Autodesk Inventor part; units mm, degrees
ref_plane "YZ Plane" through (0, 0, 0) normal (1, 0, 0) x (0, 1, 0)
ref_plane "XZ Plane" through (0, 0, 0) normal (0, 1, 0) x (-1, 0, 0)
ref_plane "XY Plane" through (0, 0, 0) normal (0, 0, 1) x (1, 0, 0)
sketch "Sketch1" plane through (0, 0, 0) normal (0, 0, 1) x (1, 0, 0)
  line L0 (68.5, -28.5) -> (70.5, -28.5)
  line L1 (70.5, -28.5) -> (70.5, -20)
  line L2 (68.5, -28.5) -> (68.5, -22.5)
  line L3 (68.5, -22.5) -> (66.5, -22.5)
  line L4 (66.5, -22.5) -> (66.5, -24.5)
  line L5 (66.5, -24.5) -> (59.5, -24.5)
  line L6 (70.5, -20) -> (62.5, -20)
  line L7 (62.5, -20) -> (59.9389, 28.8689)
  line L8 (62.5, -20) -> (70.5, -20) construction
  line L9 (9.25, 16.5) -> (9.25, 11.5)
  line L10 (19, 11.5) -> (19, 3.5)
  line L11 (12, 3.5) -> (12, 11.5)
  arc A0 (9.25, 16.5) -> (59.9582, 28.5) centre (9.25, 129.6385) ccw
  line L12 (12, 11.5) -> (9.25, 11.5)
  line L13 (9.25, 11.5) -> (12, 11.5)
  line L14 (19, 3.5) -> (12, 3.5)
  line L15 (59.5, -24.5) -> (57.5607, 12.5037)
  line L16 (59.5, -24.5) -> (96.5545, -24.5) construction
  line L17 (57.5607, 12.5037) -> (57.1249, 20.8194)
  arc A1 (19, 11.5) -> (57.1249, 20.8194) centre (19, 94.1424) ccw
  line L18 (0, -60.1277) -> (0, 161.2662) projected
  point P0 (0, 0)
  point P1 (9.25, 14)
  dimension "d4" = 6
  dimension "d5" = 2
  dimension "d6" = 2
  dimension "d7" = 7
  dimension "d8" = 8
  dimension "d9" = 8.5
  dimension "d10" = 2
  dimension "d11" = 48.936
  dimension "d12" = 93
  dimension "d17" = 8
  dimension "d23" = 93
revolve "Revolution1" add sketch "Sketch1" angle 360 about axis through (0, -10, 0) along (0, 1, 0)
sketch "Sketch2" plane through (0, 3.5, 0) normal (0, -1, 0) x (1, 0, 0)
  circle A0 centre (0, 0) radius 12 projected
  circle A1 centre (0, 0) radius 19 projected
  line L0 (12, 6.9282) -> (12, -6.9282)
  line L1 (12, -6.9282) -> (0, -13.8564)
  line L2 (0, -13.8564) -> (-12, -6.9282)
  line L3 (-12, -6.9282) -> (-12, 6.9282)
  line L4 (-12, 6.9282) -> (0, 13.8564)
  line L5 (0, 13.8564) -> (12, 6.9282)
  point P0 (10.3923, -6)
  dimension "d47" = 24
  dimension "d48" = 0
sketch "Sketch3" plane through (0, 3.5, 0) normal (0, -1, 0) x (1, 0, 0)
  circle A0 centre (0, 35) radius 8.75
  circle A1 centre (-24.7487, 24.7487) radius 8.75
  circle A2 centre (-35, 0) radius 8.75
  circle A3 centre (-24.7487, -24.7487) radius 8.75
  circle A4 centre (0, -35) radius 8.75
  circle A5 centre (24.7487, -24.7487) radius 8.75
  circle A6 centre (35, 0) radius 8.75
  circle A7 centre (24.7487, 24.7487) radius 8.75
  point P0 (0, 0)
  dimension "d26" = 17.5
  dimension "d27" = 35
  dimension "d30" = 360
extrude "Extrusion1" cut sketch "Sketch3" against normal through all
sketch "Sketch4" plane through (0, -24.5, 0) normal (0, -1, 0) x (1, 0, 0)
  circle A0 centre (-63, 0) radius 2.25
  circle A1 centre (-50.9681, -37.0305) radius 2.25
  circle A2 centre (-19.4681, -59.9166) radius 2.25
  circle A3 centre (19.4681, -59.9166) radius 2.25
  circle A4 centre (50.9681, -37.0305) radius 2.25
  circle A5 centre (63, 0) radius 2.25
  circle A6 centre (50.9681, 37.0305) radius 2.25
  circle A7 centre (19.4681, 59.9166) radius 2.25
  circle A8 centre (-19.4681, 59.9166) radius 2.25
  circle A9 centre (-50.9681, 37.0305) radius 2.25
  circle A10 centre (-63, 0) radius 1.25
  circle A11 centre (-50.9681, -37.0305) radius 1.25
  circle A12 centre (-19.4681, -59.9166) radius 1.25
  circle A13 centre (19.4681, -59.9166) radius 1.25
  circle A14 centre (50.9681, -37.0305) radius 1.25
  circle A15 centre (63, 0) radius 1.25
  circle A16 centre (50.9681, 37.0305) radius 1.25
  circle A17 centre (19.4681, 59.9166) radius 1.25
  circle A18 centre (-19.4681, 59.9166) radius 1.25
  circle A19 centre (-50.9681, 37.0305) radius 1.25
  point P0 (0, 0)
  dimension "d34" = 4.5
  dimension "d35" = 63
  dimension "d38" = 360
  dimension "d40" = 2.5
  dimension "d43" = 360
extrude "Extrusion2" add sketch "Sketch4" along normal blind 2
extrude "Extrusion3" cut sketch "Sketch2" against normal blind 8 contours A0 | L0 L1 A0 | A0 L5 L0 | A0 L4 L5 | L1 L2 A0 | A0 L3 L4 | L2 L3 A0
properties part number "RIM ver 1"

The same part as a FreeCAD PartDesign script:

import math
import FreeCAD as App
import Part
import Sketcher
from FreeCAD import Vector
Q = App.Units.Quantity

doc = App.newDocument("Part")
body = doc.addObject("PartDesign::Body", "Body")

sketch1 = doc.addObject("Sketcher::SketchObject", "Sketch")
body.addObject(sketch1)
sketch1.AttachmentSupport = (doc.XY_Plane, [""])
sketch1.MapMode = "FlatFace"
sketch1.addGeometry(Part.LineSegment(Vector(68.5, -22.5, 0), Vector(68.5, -28.5, 0)), False)
sketch1.addGeometry(Part.LineSegment(Vector(68.5, -28.5, 0), Vector(70.5, -28.5, 0)), False)
sketch1.addGeometry(Part.LineSegment(Vector(70.5, -28.5, 0), Vector(70.5, -20, 0)), False)
sketch1.addGeometry(Part.LineSegment(Vector(70.5, -20, 0), Vector(62.5, -20, 0)), False)
sketch1.addGeometry(Part.LineSegment(Vector(62.5, -20, 0), Vector(60, 28.5, 0)), False)
sketch1.addGeometry(Part.ArcOfCircle(Part.Circle(Vector(9.2, 129.6, 0), Vector(0, 0, 1), 113.1), math.radians(-90), math.radians(-63)), False)
sketch1.addGeometry(Part.LineSegment(Vector(9.2, 16.5, 0), Vector(9.2, 11.5, 0)), False)
sketch1.addGeometry(Part.LineSegment(Vector(9.2, 11.5, 0), Vector(12, 11.5, 0)), False)
sketch1.addGeometry(Part.LineSegment(Vector(12, 11.5, 0), Vector(12, 3.5, 0)), False)
sketch1.addGeometry(Part.LineSegment(Vector(12, 3.5, 0), Vector(19, 3.5, 0)), False)
sketch1.addGeometry(Part.LineSegment(Vector(19, 3.5, 0), Vector(19, 11.5, 0)), False)
sketch1.addGeometry(Part.ArcOfCircle(Part.Circle(Vector(19, 94.1, 0), Vector(0, 0, 1), 82.6), math.radians(-90), math.radians(-63)), False)
sketch1.addGeometry(Part.LineSegment(Vector(57.1, 20.8, 0), Vector(57.6, 12.5, 0)), False)
sketch1.addGeometry(Part.LineSegment(Vector(57.6, 12.5, 0), Vector(59.5, -24.5, 0)), False)
sketch1.addGeometry(Part.LineSegment(Vector(59.5, -24.5, 0), Vector(66.5, -24.5, 0)), False)
sketch1.addGeometry(Part.LineSegment(Vector(66.5, -24.5, 0), Vector(66.5, -22.5, 0)), False)
sketch1.addGeometry(Part.LineSegment(Vector(66.5, -22.5, 0), Vector(68.5, -22.5, 0)), False)
sketch1.addConstraint(Sketcher.Constraint("Coincident", 0, 2, 1, 1))
sketch1.addConstraint(Sketcher.Constraint("Coincident", 1, 2, 2, 1))
sketch1.addConstraint(Sketcher.Constraint("Coincident", 2, 2, 3, 1))
sketch1.addConstraint(Sketcher.Constraint("Coincident", 3, 2, 4, 1))
sketch1.addConstraint(Sketcher.Constraint("Coincident", 4, 2, 5, 2))
sketch1.addConstraint(Sketcher.Constraint("Coincident", 5, 1, 6, 1))
sketch1.addConstraint(Sketcher.Constraint("Coincident", 6, 2, 7, 1))
sketch1.addConstraint(Sketcher.Constraint("Coincident", 7, 2, 8, 1))
sketch1.addConstraint(Sketcher.Constraint("Coincident", 8, 2, 9, 1))
sketch1.addConstraint(Sketcher.Constraint("Coincident", 9, 2, 10, 1))
sketch1.addConstraint(Sketcher.Constraint("Coincident", 10, 2, 11, 1))
sketch1.addConstraint(Sketcher.Constraint("Coincident", 11, 2, 12, 1))
sketch1.addConstraint(Sketcher.Constraint("Coincident", 12, 2, 13, 1))
sketch1.addConstraint(Sketcher.Constraint("Coincident", 13, 2, 14, 1))
sketch1.addConstraint(Sketcher.Constraint("Coincident", 14, 2, 15, 1))
sketch1.addConstraint(Sketcher.Constraint("Coincident", 15, 2, 16, 1))
sketch1.addConstraint(Sketcher.Constraint("Coincident", 16, 2, 0, 1))
sketch1.addConstraint(Sketcher.Constraint("Vertical", 0))
sketch1.addConstraint(Sketcher.Constraint("Horizontal", 1))
sketch1.addConstraint(Sketcher.Constraint("Vertical", 2))
sketch1.addConstraint(Sketcher.Constraint("Horizontal", 3))
sketch1.addConstraint(Sketcher.Constraint("Vertical", 6))
sketch1.addConstraint(Sketcher.Constraint("Horizontal", 7))
sketch1.addConstraint(Sketcher.Constraint("Vertical", 8))
sketch1.addConstraint(Sketcher.Constraint("Horizontal", 9))
sketch1.addConstraint(Sketcher.Constraint("Vertical", 10))
sketch1.addConstraint(Sketcher.Constraint("Horizontal", 14))
sketch1.addConstraint(Sketcher.Constraint("Vertical", 15))
sketch1.addConstraint(Sketcher.Constraint("Horizontal", 16))
sketch1.addConstraint(Sketcher.Constraint("Parallel", 4, 12))
sketch1.addConstraint(Sketcher.Constraint("Parallel", 12, 13))
sketch1.addConstraint(Sketcher.Constraint("Horizontal", 7, 2, 10, 2))
sketch1.addConstraint(Sketcher.Constraint("Vertical", 11, 3, 9, 2))
sketch1.addConstraint(Sketcher.Constraint("Equal", 9, 14))
sketch1.addConstraint(Sketcher.Constraint("Equal", 1, 16))
sketch1.addConstraint(Sketcher.Constraint("Equal", 3, 8))
sketch1.addConstraint(Sketcher.Constraint("Equal", 16, 15))
sketch1.addConstraint(Sketcher.Constraint("DistanceX", 1, 1, 1, 2, 2.0))
sketch1.addConstraint(Sketcher.Constraint("DistanceX", 3, 2, 3, 1, 8.0))
sketch1.addConstraint(Sketcher.Constraint("DistanceX", 9, 1, 9, 2, 7.0))
sketch1.addConstraint(Sketcher.Constraint("DistanceY", 0, 2, 0, 1, 6.0))
sketch1.addConstraint(Sketcher.Constraint("Angle", 4, Q("93 deg")))
sketch1.addConstraint(Sketcher.Constraint("DistanceY", 2, 1, 2, 2, 8.5))
sketch1.addConstraint(Sketcher.Constraint("DistanceY", 6, 2, 6, 1, 5.0))
sketch1.addConstraint(Sketcher.Constraint("DistanceX", -1, 1, 11, 3, 19.0))
sketch1.addConstraint(Sketcher.Constraint("DistanceY", 2, 2, -1, 1, 20.0))
sketch1.addConstraint(Sketcher.Constraint("DistanceY", 0, 2, 4, 2, 57.0))
sketch1.addConstraint(Sketcher.Constraint("DistanceY", 5, 1, 4, 2, 12.0))
sketch1.addConstraint(Sketcher.Constraint("DistanceX", 7, 1, 7, 2, 2.75))
sketch1.addConstraint(Sketcher.Constraint("DistanceX", -1, 1, 0, 2, 68.5))
sketch1.addConstraint(Sketcher.Constraint("Radius", 5, 113.1385))
sketch1.addConstraint(Sketcher.Constraint("Radius", 11, 82.6424))
sketch1.addConstraint(Sketcher.Constraint("Distance", 12, 8.327))
revolution = doc.addObject("PartDesign::Revolution", "Revolution")
body.addObject(revolution)
revolution.Profile = sketch1
revolution.ReferenceAxis = (sketch1, ["V_Axis"])
revolution.Angle = 360

sketch2 = doc.addObject("Sketcher::SketchObject", "Sketch001")
body.addObject(sketch2)
sketch2.AttachmentSupport = (doc.XZ_Plane, [""])
sketch2.MapMode = "FlatFace"
sketch2.AttachmentOffset = App.Placement(Vector(0, 0, -3.5), App.Rotation())
sketch2.addGeometry(Part.Circle(Vector(0, 35, 0), Vector(0, 0, 1), 9), False)
sketch2.addGeometry(Part.Circle(Vector(-25, 25, 0), Vector(0, 0, 1), 9), False)
sketch2.addGeometry(Part.Circle(Vector(-35, 0, 0), Vector(0, 0, 1), 9), False)
sketch2.addGeometry(Part.Circle(Vector(-25, -25, 0), Vector(0, 0, 1), 9), False)
sketch2.addGeometry(Part.Circle(Vector(0, -35, 0), Vector(0, 0, 1), 9), False)
sketch2.addGeometry(Part.Circle(Vector(25, -25, 0), Vector(0, 0, 1), 9), False)
sketch2.addGeometry(Part.Circle(Vector(35, 0, 0), Vector(0, 0, 1), 9), False)
sketch2.addGeometry(Part.Circle(Vector(25, 25, 0), Vector(0, 0, 1), 9), False)
sketch2.addConstraint(Sketcher.Constraint("Equal", 0, 1))
sketch2.addConstraint(Sketcher.Constraint("Equal", 1, 2))
sketch2.addConstraint(Sketcher.Constraint("Equal", 2, 3))
sketch2.addConstraint(Sketcher.Constraint("Equal", 3, 4))
sketch2.addConstraint(Sketcher.Constraint("Equal", 4, 5))
sketch2.addConstraint(Sketcher.Constraint("Equal", 5, 6))
sketch2.addConstraint(Sketcher.Constraint("Equal", 6, 7))
sketch2.addConstraint(Sketcher.Constraint("Symmetric", 0, 3, 4, 3, -1, 1))
sketch2.addConstraint(Sketcher.Constraint("Symmetric", 1, 3, 5, 3, -1, 1))
sketch2.addConstraint(Sketcher.Constraint("Symmetric", 2, 3, 6, 3, -1, 1))
sketch2.addConstraint(Sketcher.Constraint("Symmetric", 3, 3, 7, 3, -1, 1))
sketch2.addConstraint(Sketcher.Constraint("Symmetric", 3, 3, 5, 3, -2))
sketch2.addConstraint(Sketcher.Constraint("PointOnObject", 0, 3, -2))
sketch2.addConstraint(Sketcher.Constraint("PointOnObject", 2, 3, -1))
sketch2.addConstraint(Sketcher.Constraint("Diameter", 0, 17.5))
sketch2.addConstraint(Sketcher.Constraint("DistanceY", -1, 1, 0, 3, 35.0))
sketch2.addConstraint(Sketcher.Constraint("DistanceX", 2, 3, -1, 1, 35.0))
sketch2.addConstraint(Sketcher.Constraint("DistanceX", 1, 3, -1, 1, 24.7487))
sketch2.addConstraint(Sketcher.Constraint("DistanceY", -1, 1, 1, 3, 24.7487))
pocket1 = doc.addObject("PartDesign::Pocket", "Pocket")
body.addObject(pocket1)
pocket1.Profile = sketch2
pocket1.Type = "ThroughAll"

sketch3 = doc.addObject("Sketcher::SketchObject", "Sketch002")
body.addObject(sketch3)
sketch3.AttachmentSupport = (doc.XZ_Plane, [""])
sketch3.MapMode = "FlatFace"
sketch3.AttachmentOffset = App.Placement(Vector(0, 0, 24.5), App.Rotation())
sketch3.addGeometry(Part.Circle(Vector(-63, 0, 0), Vector(0, 0, 1), 2.2), False)
sketch3.addGeometry(Part.Circle(Vector(-63, 0, 0), Vector(0, 0, 1), 1.2), False)
sketch3.addGeometry(Part.Circle(Vector(-51, -37, 0), Vector(0, 0, 1), 2.2), False)
sketch3.addGeometry(Part.Circle(Vector(-51, -37, 0), Vector(0, 0, 1), 1.2), False)
sketch3.addGeometry(Part.Circle(Vector(-19.5, -59.9, 0), Vector(0, 0, 1), 2.2), False)
sketch3.addGeometry(Part.Circle(Vector(-19.5, -59.9, 0), Vector(0, 0, 1), 1.2), False)
sketch3.addGeometry(Part.Circle(Vector(19.5, -59.9, 0), Vector(0, 0, 1), 2.2), False)
sketch3.addGeometry(Part.Circle(Vector(19.5, -59.9, 0), Vector(0, 0, 1), 1.2), False)
sketch3.addGeometry(Part.Circle(Vector(51, -37, 0), Vector(0, 0, 1), 2.2), False)
sketch3.addGeometry(Part.Circle(Vector(51, -37, 0), Vector(0, 0, 1), 1.2), False)
sketch3.addGeometry(Part.Circle(Vector(63, 0, 0), Vector(0, 0, 1), 2.2), False)
sketch3.addGeometry(Part.Circle(Vector(63, 0, 0), Vector(0, 0, 1), 1.2), False)
sketch3.addGeometry(Part.Circle(Vector(51, 37, 0), Vector(0, 0, 1), 2.2), False)
sketch3.addGeometry(Part.Circle(Vector(51, 37, 0), Vector(0, 0, 1), 1.2), False)
sketch3.addGeometry(Part.Circle(Vector(19.5, 59.9, 0), Vector(0, 0, 1), 2.2), False)
sketch3.addGeometry(Part.Circle(Vector(19.5, 59.9, 0), Vector(0, 0, 1), 1.2), False)
sketch3.addGeometry(Part.Circle(Vector(-19.5, 59.9, 0), Vector(0, 0, 1), 2.2), False)
sketch3.addGeometry(Part.Circle(Vector(-19.5, 59.9, 0), Vector(0, 0, 1), 1.2), False)
sketch3.addGeometry(Part.Circle(Vector(-51, 37, 0), Vector(0, 0, 1), 2.2), False)
sketch3.addGeometry(Part.Circle(Vector(-51, 37, 0), Vector(0, 0, 1), 1.2), False)
sketch3.addConstraint(Sketcher.Constraint("Coincident", 1, 3, 0, 3))
sketch3.addConstraint(Sketcher.Constraint("Coincident", 3, 3, 2, 3))
sketch3.addConstraint(Sketcher.Constraint("Coincident", 5, 3, 4, 3))
sketch3.addConstraint(Sketcher.Constraint("Coincident", 7, 3, 6, 3))
sketch3.addConstraint(Sketcher.Constraint("Coincident", 9, 3, 8, 3))
sketch3.addConstraint(Sketcher.Constraint("Coincident", 11, 3, 10, 3))
sketch3.addConstraint(Sketcher.Constraint("Coincident", 13, 3, 12, 3))
sketch3.addConstraint(Sketcher.Constraint("Coincident", 15, 3, 14, 3))
sketch3.addConstraint(Sketcher.Constraint("Coincident", 17, 3, 16, 3))
sketch3.addConstraint(Sketcher.Constraint("Coincident", 19, 3, 18, 3))
sketch3.addConstraint(Sketcher.Constraint("Equal", 0, 2))
sketch3.addConstraint(Sketcher.Constraint("Equal", 1, 3))
sketch3.addConstraint(Sketcher.Constraint("Equal", 2, 4))
sketch3.addConstraint(Sketcher.Constraint("Equal", 3, 5))
sketch3.addConstraint(Sketcher.Constraint("Equal", 4, 6))
sketch3.addConstraint(Sketcher.Constraint("Equal", 5, 7))
sketch3.addConstraint(Sketcher.Constraint("Equal", 6, 8))
sketch3.addConstraint(Sketcher.Constraint("Equal", 7, 9))
sketch3.addConstraint(Sketcher.Constraint("Equal", 8, 10))
sketch3.addConstraint(Sketcher.Constraint("Equal", 9, 11))
sketch3.addConstraint(Sketcher.Constraint("Equal", 10, 12))
sketch3.addConstraint(Sketcher.Constraint("Equal", 11, 13))
sketch3.addConstraint(Sketcher.Constraint("Equal", 12, 14))
sketch3.addConstraint(Sketcher.Constraint("Equal", 13, 15))
sketch3.addConstraint(Sketcher.Constraint("Equal", 14, 16))
sketch3.addConstraint(Sketcher.Constraint("Equal", 15, 17))
sketch3.addConstraint(Sketcher.Constraint("Equal", 16, 18))
sketch3.addConstraint(Sketcher.Constraint("Equal", 17, 19))
sketch3.addConstraint(Sketcher.Constraint("Symmetric", 0, 3, 10, 3, -1, 1))
sketch3.addConstraint(Sketcher.Constraint("Symmetric", 2, 3, 12, 3, -1, 1))
sketch3.addConstraint(Sketcher.Constraint("Symmetric", 4, 3, 14, 3, -1, 1))
sketch3.addConstraint(Sketcher.Constraint("Symmetric", 6, 3, 16, 3, -1, 1))
sketch3.addConstraint(Sketcher.Constraint("Symmetric", 8, 3, 18, 3, -1, 1))
sketch3.addConstraint(Sketcher.Constraint("Symmetric", 4, 3, 6, 3, -2))
sketch3.addConstraint(Sketcher.Constraint("Symmetric", 2, 3, 8, 3, -2))
sketch3.addConstraint(Sketcher.Constraint("PointOnObject", 0, 3, -1))
sketch3.addConstraint(Sketcher.Constraint("Diameter", 0, 4.5))
sketch3.addConstraint(Sketcher.Constraint("Diameter", 1, 2.5))
sketch3.addConstraint(Sketcher.Constraint("DistanceX", 0, 3, -1, 1, 63.0))
sketch3.addConstraint(Sketcher.Constraint("DistanceX", 2, 3, 4, 3, 31.5))
sketch3.addConstraint(Sketcher.Constraint("DistanceX", 2, 3, -1, 1, 50.968))
sketch3.addConstraint(Sketcher.Constraint("DistanceY", 4, 3, 2, 3, 22.886))
sketch3.addConstraint(Sketcher.Constraint("DistanceY", 8, 3, 12, 3, 74.061))
pad1 = doc.addObject("PartDesign::Pad", "Pad")
body.addObject(pad1)
pad1.Profile = sketch3
pad1.Length = 2

sketch4 = doc.addObject("Sketcher::SketchObject", "Sketch003")
body.addObject(sketch4)
sketch4.AttachmentSupport = (doc.XZ_Plane, [""])
sketch4.MapMode = "FlatFace"
sketch4.AttachmentOffset = App.Placement(Vector(0, 0, -3.5), App.Rotation())
sketch4.addGeometry(Part.LineSegment(Vector(12, -7, 0), Vector(12, 7, 0)), False)
sketch4.addGeometry(Part.LineSegment(Vector(12, 7, 0), Vector(0, 14, 0)), False)
sketch4.addGeometry(Part.LineSegment(Vector(0, 14, 0), Vector(-12, 7, 0)), False)
sketch4.addGeometry(Part.LineSegment(Vector(-12, 7, 0), Vector(-12, -7, 0)), False)
sketch4.addGeometry(Part.LineSegment(Vector(-12, -7, 0), Vector(0, -14, 0)), False)
sketch4.addGeometry(Part.LineSegment(Vector(0, -14, 0), Vector(12, -7, 0)), False)
sketch4.addConstraint(Sketcher.Constraint("Coincident", 0, 2, 1, 1))
sketch4.addConstraint(Sketcher.Constraint("Coincident", 1, 2, 2, 1))
sketch4.addConstraint(Sketcher.Constraint("Coincident", 2, 2, 3, 1))
sketch4.addConstraint(Sketcher.Constraint("Coincident", 3, 2, 4, 1))
sketch4.addConstraint(Sketcher.Constraint("Coincident", 4, 2, 5, 1))
sketch4.addConstraint(Sketcher.Constraint("Coincident", 5, 2, 0, 1))
sketch4.addConstraint(Sketcher.Constraint("Vertical", 0))
sketch4.addConstraint(Sketcher.Constraint("Vertical", 3))
sketch4.addConstraint(Sketcher.Constraint("Symmetric", 0, 2, 3, 2, -1, 1))
sketch4.addConstraint(Sketcher.Constraint("Symmetric", 1, 2, 4, 2, -1, 1))
sketch4.addConstraint(Sketcher.Constraint("PointOnObject", 1, 2, -2))
sketch4.addConstraint(Sketcher.Constraint("Parallel", 2, 5))
sketch4.addConstraint(Sketcher.Constraint("Horizontal", 0, 2, 2, 2))
sketch4.addConstraint(Sketcher.Constraint("DistanceX", 2, 2, 0, 2, 24.0))
sketch4.addConstraint(Sketcher.Constraint("Angle", 1, Q("150 deg")))
sketch4.addConstraint(Sketcher.Constraint("DistanceY", 0, 1, 0, 2, 13.8564))
pocket2 = doc.addObject("PartDesign::Pocket", "Pocket001")
body.addObject(pocket2)
pocket2.Profile = sketch4
pocket2.Length = 8

doc.recompute()
